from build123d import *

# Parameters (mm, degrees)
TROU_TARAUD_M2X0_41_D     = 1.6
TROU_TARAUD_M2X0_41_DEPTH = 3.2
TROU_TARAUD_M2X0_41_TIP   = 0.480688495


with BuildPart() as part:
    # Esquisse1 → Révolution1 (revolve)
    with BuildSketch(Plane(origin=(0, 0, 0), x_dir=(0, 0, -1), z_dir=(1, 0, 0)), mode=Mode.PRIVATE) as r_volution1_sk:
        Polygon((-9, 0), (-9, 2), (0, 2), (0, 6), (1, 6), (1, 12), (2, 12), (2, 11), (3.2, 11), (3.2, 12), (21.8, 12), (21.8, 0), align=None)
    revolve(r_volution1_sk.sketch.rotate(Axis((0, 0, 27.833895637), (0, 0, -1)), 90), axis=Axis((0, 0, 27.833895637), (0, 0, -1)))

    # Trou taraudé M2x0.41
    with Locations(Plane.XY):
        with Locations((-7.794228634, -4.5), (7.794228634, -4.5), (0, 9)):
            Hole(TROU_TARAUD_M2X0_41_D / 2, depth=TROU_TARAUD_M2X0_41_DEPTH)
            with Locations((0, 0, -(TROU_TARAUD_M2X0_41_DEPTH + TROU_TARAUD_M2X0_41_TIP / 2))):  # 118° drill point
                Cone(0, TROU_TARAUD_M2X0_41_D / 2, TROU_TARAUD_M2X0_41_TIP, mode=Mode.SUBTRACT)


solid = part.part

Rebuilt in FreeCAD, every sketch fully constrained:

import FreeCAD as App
import Part
import Sketcher


def add_polygon(sketch, points):
    """Adds a closed chain of lines whose ends are joined by coincident constraints."""
    first, n = sketch.GeometryCount, len(points)
    for a, b in zip(points, points[1:] + points[:1]):
        sketch.addGeometry(Part.LineSegment(App.Vector(*a, 0), App.Vector(*b, 0)), False)
    for i in range(n):
        sketch.addConstraint(Sketcher.Constraint("Coincident", first + i, 2, first + (i + 1) % n, 1))

doc = App.newDocument("Part")
params = doc.addObject("Spreadsheet::Sheet", "Params")
for row, (alias, value) in enumerate([
    ("sketch1_width", "2 mm"),
    ("sketch1_width2", "12 mm"),
    ("sketch1_width3", "1 mm"),
    ("sketch1_width4", "6 mm"),
    ("sketch1_height", "9 mm"),
    ("revolution_angle", "360 deg"),
    ("sketch2_diameter", "1.6 mm"),
    ("hole_diameter", "1.6 mm"),
    ("hole_depth", "3.2 mm"),
], start=1):
    params.set(f"A{row}", alias)
    params.set(f"B{row}", "=" + value)
    params.setAlias(f"B{row}", alias)

body = doc.addObject("PartDesign::Body", "Body")

# Sketch on YZ plane
sketch1 = body.newObject("Sketcher::SketchObject", "Sketch")
sketch1.AttachmentSupport = (doc.getObject("YZ_Plane"), [""])
sketch1.MapMode = "FlatFace"
add_polygon(sketch1, [(2, 9), (0, 9), (0, -21.8), (12, -21.8), (12, -3.2), (11, -3.2), (11, -2), (12, -2), (12, -1), (6, -1), (6, 0), (2, 0)])  # lines 0-11
sketch1.addConstraint(Sketcher.Constraint("Horizontal", 0))
sketch1.addConstraint(Sketcher.Constraint("Vertical", 1))
sketch1.addConstraint(Sketcher.Constraint("Horizontal", 2))
sketch1.addConstraint(Sketcher.Constraint("Vertical", 3))
sketch1.addConstraint(Sketcher.Constraint("Horizontal", 4))
sketch1.addConstraint(Sketcher.Constraint("Vertical", 5))
sketch1.addConstraint(Sketcher.Constraint("Horizontal", 6))
sketch1.addConstraint(Sketcher.Constraint("Vertical", 7))
sketch1.addConstraint(Sketcher.Constraint("Horizontal", 8))
sketch1.addConstraint(Sketcher.Constraint("Vertical", 9))
sketch1.addConstraint(Sketcher.Constraint("Horizontal", 10))
sketch1.addConstraint(Sketcher.Constraint("Vertical", 11))
sketch1.addConstraint(Sketcher.Constraint("PointOnObject", 0, 2, -2))
sketch1.addConstraint(Sketcher.Constraint("PointOnObject", 9, 2, -1))
sketch1.addConstraint(Sketcher.Constraint("Vertical", 3, 2, 6, 2))
sketch1.addConstraint(Sketcher.Constraint("Equal", 6, 7))
sketch1.addConstraint(Sketcher.Constraint("Equal", 7, 9))
sketch1.addConstraint(Sketcher.Constraint("DistanceX", 0, 2, 0, 1, 2.0))
sketch1.addConstraint(Sketcher.Constraint("DistanceX", 2, 1, 2, 2, 12.0))
sketch1.addConstraint(Sketcher.Constraint("DistanceX", 4, 2, 4, 1, 1.0))
sketch1.addConstraint(Sketcher.Constraint("DistanceX", 8, 2, 8, 1, 6.0))
sketch1.addConstraint(Sketcher.Constraint("DistanceY", 11, 1, 11, 2, 9.0))
sketch1.addConstraint(Sketcher.Constraint("DistanceY", 1, 2, 1, 1, 30.8))
sketch1.addConstraint(Sketcher.Constraint("DistanceY", 3, 1, 3, 2, 18.6))
sketch1.setExpression("Constraints[29]", "Params.sketch1_width")
sketch1.setExpression("Constraints[30]", "Params.sketch1_width2")
sketch1.setExpression("Constraints[31]", "Params.sketch1_width3")
sketch1.setExpression("Constraints[32]", "Params.sketch1_width4")
sketch1.setExpression("Constraints[33]", "Params.sketch1_height")
revolution = body.newObject("PartDesign::Revolution", "Revolution")
revolution.Profile = sketch1
revolution.ReferenceAxis = (sketch1, ["V_Axis"])
revolution.setExpression("Angle", "Params.revolution_angle")

# Sketch on XY plane
sketch2 = body.newObject("Sketcher::SketchObject", "Sketch001")
sketch2.AttachmentSupport = (doc.getObject("XY_Plane"), [""])
sketch2.MapMode = "FlatFace"
sketch2.addGeometry(Part.Circle(App.Vector(-7.8, -4.5, 0), App.Vector(0, 0, 1), 0.8), False)
sketch2.addGeometry(Part.Circle(App.Vector(7.8, -4.5, 0), App.Vector(0, 0, 1), 0.8), False)
sketch2.addGeometry(Part.Circle(App.Vector(0, 9, 0), App.Vector(0, 0, 1), 0.8), False)
sketch2.addConstraint(Sketcher.Constraint("Equal", 0, 1))
sketch2.addConstraint(Sketcher.Constraint("Equal", 1, 2))
sketch2.addConstraint(Sketcher.Constraint("Symmetric", 0, 3, 1, 3, -2))
sketch2.addConstraint(Sketcher.Constraint("PointOnObject", 2, 3, -2))
sketch2.addConstraint(Sketcher.Constraint("Diameter", 0, 1.6))
sketch2.addConstraint(Sketcher.Constraint("DistanceY", -1, 1, 2, 3, 9.0))
sketch2.addConstraint(Sketcher.Constraint("DistanceY", 0, 3, -1, 1, 4.5))
sketch2.addConstraint(Sketcher.Constraint("DistanceX", 0, 3, -1, 1, 7.794229))
sketch2.setExpression("Constraints[4]", "Params.sketch2_diameter")
doc.recompute()
hole = body.newObject("PartDesign::Hole", "Hole")
hole.Profile = sketch2
hole.ThreadType = "None"
hole.setExpression("Diameter", "Params.hole_diameter")
hole.DepthType = "Dimension"
hole.setExpression("Depth", "Params.hole_depth")
hole.DrillPoint = "Angled"
hole.DrillPointAngle = 118

doc.recompute()
